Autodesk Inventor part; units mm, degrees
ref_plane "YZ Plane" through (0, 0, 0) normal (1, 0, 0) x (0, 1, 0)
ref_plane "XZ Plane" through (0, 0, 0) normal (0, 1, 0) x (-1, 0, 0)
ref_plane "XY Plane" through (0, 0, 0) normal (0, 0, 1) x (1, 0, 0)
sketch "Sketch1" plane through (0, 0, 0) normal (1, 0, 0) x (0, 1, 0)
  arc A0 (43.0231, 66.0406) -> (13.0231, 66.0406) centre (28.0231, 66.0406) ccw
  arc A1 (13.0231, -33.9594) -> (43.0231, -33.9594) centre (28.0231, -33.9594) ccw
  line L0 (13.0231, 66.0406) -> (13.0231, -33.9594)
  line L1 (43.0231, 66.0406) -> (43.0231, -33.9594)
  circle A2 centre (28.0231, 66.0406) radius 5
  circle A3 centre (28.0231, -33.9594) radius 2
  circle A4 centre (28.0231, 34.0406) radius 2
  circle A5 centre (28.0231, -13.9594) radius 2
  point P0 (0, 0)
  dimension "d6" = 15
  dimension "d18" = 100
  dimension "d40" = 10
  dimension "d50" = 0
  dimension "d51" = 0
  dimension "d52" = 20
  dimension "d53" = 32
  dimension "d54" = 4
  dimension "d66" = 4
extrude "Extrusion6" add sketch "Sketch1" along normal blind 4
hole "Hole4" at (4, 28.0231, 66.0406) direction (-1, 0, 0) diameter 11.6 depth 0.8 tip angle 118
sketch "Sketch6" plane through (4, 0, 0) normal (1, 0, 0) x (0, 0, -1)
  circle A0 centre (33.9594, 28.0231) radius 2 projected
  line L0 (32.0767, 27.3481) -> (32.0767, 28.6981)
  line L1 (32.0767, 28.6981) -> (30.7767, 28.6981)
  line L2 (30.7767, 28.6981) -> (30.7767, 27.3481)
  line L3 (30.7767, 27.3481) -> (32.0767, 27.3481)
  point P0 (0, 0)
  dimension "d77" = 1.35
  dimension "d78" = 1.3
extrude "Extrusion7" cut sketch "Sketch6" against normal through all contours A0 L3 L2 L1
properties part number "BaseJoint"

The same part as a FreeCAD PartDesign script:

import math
import FreeCAD as App
import Part
import Sketcher

doc = App.newDocument("Part")
body = doc.addObject("PartDesign::Body", "Body")

sketch1 = body.newObject("Sketcher::SketchObject", "Sketch")
sketch1.AttachmentSupport = (doc.getObject("YZ_Plane"), [""])
sketch1.MapMode = "FlatFace"
sketch1.addGeometry([
    Part.LineSegment(App.Vector(43, -34, 0), App.Vector(43, 66, 0)),
    Part.ArcOfCircle(Part.Circle(App.Vector(28, 66, 0), App.Vector(0, 0, 1), 15), math.radians(0), math.radians(180)),
    Part.LineSegment(App.Vector(13, 66, 0), App.Vector(13, -34, 0)),
    Part.ArcOfCircle(Part.Circle(App.Vector(28, -34, 0), App.Vector(0, 0, 1), 15), math.radians(180), math.radians(360)),
    Part.Circle(App.Vector(28, -34, 0), App.Vector(0, 0, 1), 2),
    Part.Circle(App.Vector(28, -14, 0), App.Vector(0, 0, 1), 2),
    Part.Circle(App.Vector(28, 34, 0), App.Vector(0, 0, 1), 2),
    Part.Circle(App.Vector(28, 66, 0), App.Vector(0, 0, 1), 5),
], False)
sketch1.addConstraint([
    Sketcher.Constraint("Tangent", 0, 2, 1, 1),
    Sketcher.Constraint("Tangent", 1, 2, 2, 1),
    Sketcher.Constraint("Tangent", 2, 2, 3, 1),
    Sketcher.Constraint("Tangent", 3, 2, 0, 1),
    Sketcher.Constraint("Vertical", 0),
    Sketcher.Constraint("Vertical", 2),
    Sketcher.Constraint("Coincident", 4, 3, 3, 3),
    Sketcher.Constraint("Coincident", 7, 3, 1, 3),
    Sketcher.Constraint("Equal", 4, 5),
    Sketcher.Constraint("Equal", 5, 6),
    Sketcher.Constraint("Vertical", 4, 3, 5, 3),
    Sketcher.Constraint("Vertical", 5, 3, 6, 3),
    Sketcher.Constraint("Diameter", 4, 4.0),
    Sketcher.Constraint("Diameter", 7, 10.0),
    Sketcher.Constraint("Radius", 1, 15.0),
    Sketcher.Constraint("DistanceY", 0, 1, 0, 2, 100.0),
    Sketcher.Constraint("DistanceY", 3, 3, 5, 3, 20.0),
    Sketcher.Constraint("DistanceY", 6, 3, 1, 3, 32.0),
    Sketcher.Constraint("DistanceX", -1, 1, 1, 3, 28.023),
    Sketcher.Constraint("DistanceY", -1, 1, 1, 3, 66.0406),
])
pad1 = body.newObject("PartDesign::Pad", "Pad")
pad1.Profile = sketch1
pad1.Length = 4

sketch2 = body.newObject("Sketcher::SketchObject", "Sketch001")
sketch2.AttachmentSupport = (doc.getObject("YZ_Plane"), [""])
sketch2.MapMode = "FlatFace"
sketch2.AttachmentOffset = App.Placement(App.Vector(0, 0, 4), App.Rotation())
sketch2.addGeometry(Part.Circle(App.Vector(28, 66, 0), App.Vector(0, 0, 1), 6), False)
sketch2.addConstraint([
    Sketcher.Constraint("Diameter", 0, 11.6),
    Sketcher.Constraint("DistanceX", -1, 1, 0, 3, 28.023),
    Sketcher.Constraint("DistanceY", -1, 1, 0, 3, 66.0406),
])
doc.recompute()
hole = body.newObject("PartDesign::Hole", "Hole")
hole.Profile = sketch2
hole.ThreadType = "None"
hole.Diameter = 11.6
hole.DepthType = "Dimension"
hole.Depth = 0.8
hole.DrillPoint = "Angled"
hole.DrillPointAngle = 118

sketch3 = body.newObject("Sketcher::SketchObject", "Sketch002")
sketch3.AttachmentSupport = (doc.getObject("YZ_Plane"), [""])
sketch3.MapMode = "FlatFace"
sketch3.AttachmentOffset = App.Placement(App.Vector(0, 0, 4), App.Rotation())
sketch3.addGeometry([
    Part.ArcOfCircle(Part.Circle(App.Vector(28, -34, 0), App.Vector(0, 0, 1), 2), math.radians(70), math.radians(110)),
    Part.LineSegment(App.Vector(28.7, -32.1, 0), App.Vector(28.7, -30.8, 0)),
    Part.LineSegment(App.Vector(28.7, -30.8, 0), App.Vector(27.3, -30.8, 0)),
    Part.LineSegment(App.Vector(27.3, -30.8, 0), App.Vector(27.3, -32.1, 0)),
], False)
sketch3.addConstraint([
    Sketcher.Constraint("Coincident", 0, 1, 1, 1),
    Sketcher.Constraint("Coincident", 1, 2, 2, 1),
    Sketcher.Constraint("Coincident", 2, 2, 3, 1),
    Sketcher.Constraint("Coincident", 3, 2, 0, 2),
    Sketcher.Constraint("Vertical", 1),
    Sketcher.Constraint("Horizontal", 2),
    Sketcher.Constraint("Vertical", 3),
    Sketcher.Constraint("Horizontal", 0, 1, 3, 2),
    Sketcher.Constraint("DistanceY", 1, 1, 1, 2, 1.3),
    Sketcher.Constraint("Radius", 0, 2.0),
    Sketcher.Constraint("DistanceX", 2, 2, 2, 1, 1.35),
    Sketcher.Constraint("DistanceX", -1, 1, 0, 3, 28.023),
    Sketcher.Constraint("DistanceY", 0, 3, -1, 1, 33.9594),
])
pocket1 = body.newObject("PartDesign::Pocket", "Pocket")
pocket1.Profile = sketch3
pocket1.Type = "ThroughAll"

doc.recompute()
